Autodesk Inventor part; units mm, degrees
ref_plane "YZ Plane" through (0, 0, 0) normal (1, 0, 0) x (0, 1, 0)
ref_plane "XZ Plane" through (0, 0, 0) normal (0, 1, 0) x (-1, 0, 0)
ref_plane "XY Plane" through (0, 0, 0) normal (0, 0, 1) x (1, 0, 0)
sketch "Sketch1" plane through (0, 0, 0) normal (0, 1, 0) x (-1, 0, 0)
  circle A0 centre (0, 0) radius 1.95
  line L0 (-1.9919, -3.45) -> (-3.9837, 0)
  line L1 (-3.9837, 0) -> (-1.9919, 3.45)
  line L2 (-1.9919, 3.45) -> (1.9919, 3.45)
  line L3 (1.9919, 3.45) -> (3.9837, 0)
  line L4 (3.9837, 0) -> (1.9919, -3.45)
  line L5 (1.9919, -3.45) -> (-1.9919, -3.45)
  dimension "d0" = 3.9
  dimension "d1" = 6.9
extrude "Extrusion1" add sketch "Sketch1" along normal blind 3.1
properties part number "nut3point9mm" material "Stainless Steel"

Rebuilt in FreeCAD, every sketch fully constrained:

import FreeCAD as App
import Part
import Sketcher
Q = App.Units.Quantity

doc = App.newDocument("Part")
body = doc.addObject("PartDesign::Body", "Body")

sketch1 = doc.addObject("Sketcher::SketchObject", "Sketch")
body.addObject(sketch1)
sketch1.AttachmentSupport = (doc.XZ_Plane, [""])
sketch1.MapMode = "FlatFace"
sketch1.addGeometry(Part.LineSegment(App.Vector(4, 0, 0), App.Vector(2, -3.5, 0)), False)
sketch1.addGeometry(Part.LineSegment(App.Vector(2, -3.5, 0), App.Vector(-2, -3.5, 0)), False)
sketch1.addGeometry(Part.LineSegment(App.Vector(-2, -3.5, 0), App.Vector(-4, 0, 0)), False)
sketch1.addGeometry(Part.LineSegment(App.Vector(-4, 0, 0), App.Vector(-2, 3.5, 0)), False)
sketch1.addGeometry(Part.LineSegment(App.Vector(-2, 3.5, 0), App.Vector(2, 3.5, 0)), False)
sketch1.addGeometry(Part.LineSegment(App.Vector(2, 3.5, 0), App.Vector(4, 0, 0)), False)
sketch1.addGeometry(Part.Circle(App.Vector(0, 0, 0), App.Vector(0, 0, 1), 1.9), False)
sketch1.addConstraint(Sketcher.Constraint("Coincident", 0, 2, 1, 1))
sketch1.addConstraint(Sketcher.Constraint("Coincident", 1, 2, 2, 1))
sketch1.addConstraint(Sketcher.Constraint("Coincident", 2, 2, 3, 1))
sketch1.addConstraint(Sketcher.Constraint("Coincident", 3, 2, 4, 1))
sketch1.addConstraint(Sketcher.Constraint("Coincident", 4, 2, 5, 1))
sketch1.addConstraint(Sketcher.Constraint("Coincident", 5, 2, 0, 1))
sketch1.addConstraint(Sketcher.Constraint("Horizontal", 1))
sketch1.addConstraint(Sketcher.Constraint("Horizontal", 4))
sketch1.addConstraint(Sketcher.Constraint("Coincident", 6, 3, -1, 1))
sketch1.addConstraint(Sketcher.Constraint("Symmetric", 0, 2, 3, 2, -1, 1))
sketch1.addConstraint(Sketcher.Constraint("Symmetric", 2, 2, 5, 2, -1, 1))
sketch1.addConstraint(Sketcher.Constraint("PointOnObject", 2, 2, -1))
sketch1.addConstraint(Sketcher.Constraint("Parallel", 2, 5))
sketch1.addConstraint(Sketcher.Constraint("Vertical", 1, 2, 3, 2))
sketch1.addConstraint(Sketcher.Constraint("Diameter", 6, 3.9))
sketch1.addConstraint(Sketcher.Constraint("DistanceY", 1, 2, 3, 2, 6.9))
sketch1.addConstraint(Sketcher.Constraint("Angle", 0, Q("-119.9993 deg")))
sketch1.addConstraint(Sketcher.Constraint("DistanceX", 1, 2, 1, 1, 3.9838))
pad1 = doc.addObject("PartDesign::Pad", "Pad")
body.addObject(pad1)
pad1.Profile = sketch1
pad1.Length = 3.1
pad1.Reversed = True

doc.recompute()
